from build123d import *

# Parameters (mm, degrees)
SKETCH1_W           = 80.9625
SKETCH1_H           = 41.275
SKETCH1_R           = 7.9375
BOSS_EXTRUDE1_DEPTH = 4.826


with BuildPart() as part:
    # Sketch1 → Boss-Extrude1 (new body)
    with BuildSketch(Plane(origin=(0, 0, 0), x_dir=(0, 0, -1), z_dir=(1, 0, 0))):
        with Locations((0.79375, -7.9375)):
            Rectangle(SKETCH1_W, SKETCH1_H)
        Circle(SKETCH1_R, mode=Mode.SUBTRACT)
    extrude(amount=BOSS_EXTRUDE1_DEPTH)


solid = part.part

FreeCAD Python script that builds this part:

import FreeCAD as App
import Part
import Sketcher
from FreeCAD import Vector
Q = App.Units.Quantity


def add_polygon(sketch, points):
    """Adds a closed chain of lines whose ends are joined by coincident constraints."""
    first, n = sketch.GeometryCount, len(points)
    for a, b in zip(points, points[1:] + points[:1]):
        sketch.addGeometry(Part.LineSegment(App.Vector(*a, 0), App.Vector(*b, 0)), False)
    for i in range(n):
        sketch.addConstraint(Sketcher.Constraint("Coincident", first + i, 2, first + (i + 1) % n, 1))

doc = App.newDocument("Part")
body = doc.addObject("PartDesign::Body", "Body")

# Sketch on YZ plane
sketch1 = body.newObject("Sketcher::SketchObject", "Sketch")
sketch1.AttachmentSupport = (doc.getObject("YZ_Plane"), [""])
sketch1.MapMode = "FlatFace"
add_polygon(sketch1, [(13, 40), (-29, 40), (-29, -41), (13, -41)])  # lines 0-3
sketch1.addGeometry(Part.Circle(Vector(0, 0, 0), Vector(0, 0, 1), 8), False)  # 4
sketch1.addConstraint(Sketcher.Constraint("Horizontal", 0))
sketch1.addConstraint(Sketcher.Constraint("Vertical", 1))
sketch1.addConstraint(Sketcher.Constraint("Horizontal", 2))
sketch1.addConstraint(Sketcher.Constraint("Vertical", 3))
sketch1.addConstraint(Sketcher.Constraint("Coincident", 4, 3, -1, 1))
sketch1.addConstraint(Sketcher.Constraint("Diameter", 4, Q("0.625 in")))
sketch1.addConstraint(Sketcher.Constraint("DistanceX", -1, 1, 2, 2, Q("0.5 in")))
sketch1.addConstraint(Sketcher.Constraint("DistanceX", 0, 2, 0, 1, Q("1.625 in")))
sketch1.addConstraint(Sketcher.Constraint("DistanceY", 1, 2, 1, 1, Q("3.1875 in")))
sketch1.addConstraint(Sketcher.Constraint("DistanceY", -1, 1, 0, 2, Q("1.5625 in")))
pad1 = body.newObject("PartDesign::Pad", "Pad")
pad1.Profile = sketch1
pad1.Length = Q("0.19 in")

doc.recompute()
